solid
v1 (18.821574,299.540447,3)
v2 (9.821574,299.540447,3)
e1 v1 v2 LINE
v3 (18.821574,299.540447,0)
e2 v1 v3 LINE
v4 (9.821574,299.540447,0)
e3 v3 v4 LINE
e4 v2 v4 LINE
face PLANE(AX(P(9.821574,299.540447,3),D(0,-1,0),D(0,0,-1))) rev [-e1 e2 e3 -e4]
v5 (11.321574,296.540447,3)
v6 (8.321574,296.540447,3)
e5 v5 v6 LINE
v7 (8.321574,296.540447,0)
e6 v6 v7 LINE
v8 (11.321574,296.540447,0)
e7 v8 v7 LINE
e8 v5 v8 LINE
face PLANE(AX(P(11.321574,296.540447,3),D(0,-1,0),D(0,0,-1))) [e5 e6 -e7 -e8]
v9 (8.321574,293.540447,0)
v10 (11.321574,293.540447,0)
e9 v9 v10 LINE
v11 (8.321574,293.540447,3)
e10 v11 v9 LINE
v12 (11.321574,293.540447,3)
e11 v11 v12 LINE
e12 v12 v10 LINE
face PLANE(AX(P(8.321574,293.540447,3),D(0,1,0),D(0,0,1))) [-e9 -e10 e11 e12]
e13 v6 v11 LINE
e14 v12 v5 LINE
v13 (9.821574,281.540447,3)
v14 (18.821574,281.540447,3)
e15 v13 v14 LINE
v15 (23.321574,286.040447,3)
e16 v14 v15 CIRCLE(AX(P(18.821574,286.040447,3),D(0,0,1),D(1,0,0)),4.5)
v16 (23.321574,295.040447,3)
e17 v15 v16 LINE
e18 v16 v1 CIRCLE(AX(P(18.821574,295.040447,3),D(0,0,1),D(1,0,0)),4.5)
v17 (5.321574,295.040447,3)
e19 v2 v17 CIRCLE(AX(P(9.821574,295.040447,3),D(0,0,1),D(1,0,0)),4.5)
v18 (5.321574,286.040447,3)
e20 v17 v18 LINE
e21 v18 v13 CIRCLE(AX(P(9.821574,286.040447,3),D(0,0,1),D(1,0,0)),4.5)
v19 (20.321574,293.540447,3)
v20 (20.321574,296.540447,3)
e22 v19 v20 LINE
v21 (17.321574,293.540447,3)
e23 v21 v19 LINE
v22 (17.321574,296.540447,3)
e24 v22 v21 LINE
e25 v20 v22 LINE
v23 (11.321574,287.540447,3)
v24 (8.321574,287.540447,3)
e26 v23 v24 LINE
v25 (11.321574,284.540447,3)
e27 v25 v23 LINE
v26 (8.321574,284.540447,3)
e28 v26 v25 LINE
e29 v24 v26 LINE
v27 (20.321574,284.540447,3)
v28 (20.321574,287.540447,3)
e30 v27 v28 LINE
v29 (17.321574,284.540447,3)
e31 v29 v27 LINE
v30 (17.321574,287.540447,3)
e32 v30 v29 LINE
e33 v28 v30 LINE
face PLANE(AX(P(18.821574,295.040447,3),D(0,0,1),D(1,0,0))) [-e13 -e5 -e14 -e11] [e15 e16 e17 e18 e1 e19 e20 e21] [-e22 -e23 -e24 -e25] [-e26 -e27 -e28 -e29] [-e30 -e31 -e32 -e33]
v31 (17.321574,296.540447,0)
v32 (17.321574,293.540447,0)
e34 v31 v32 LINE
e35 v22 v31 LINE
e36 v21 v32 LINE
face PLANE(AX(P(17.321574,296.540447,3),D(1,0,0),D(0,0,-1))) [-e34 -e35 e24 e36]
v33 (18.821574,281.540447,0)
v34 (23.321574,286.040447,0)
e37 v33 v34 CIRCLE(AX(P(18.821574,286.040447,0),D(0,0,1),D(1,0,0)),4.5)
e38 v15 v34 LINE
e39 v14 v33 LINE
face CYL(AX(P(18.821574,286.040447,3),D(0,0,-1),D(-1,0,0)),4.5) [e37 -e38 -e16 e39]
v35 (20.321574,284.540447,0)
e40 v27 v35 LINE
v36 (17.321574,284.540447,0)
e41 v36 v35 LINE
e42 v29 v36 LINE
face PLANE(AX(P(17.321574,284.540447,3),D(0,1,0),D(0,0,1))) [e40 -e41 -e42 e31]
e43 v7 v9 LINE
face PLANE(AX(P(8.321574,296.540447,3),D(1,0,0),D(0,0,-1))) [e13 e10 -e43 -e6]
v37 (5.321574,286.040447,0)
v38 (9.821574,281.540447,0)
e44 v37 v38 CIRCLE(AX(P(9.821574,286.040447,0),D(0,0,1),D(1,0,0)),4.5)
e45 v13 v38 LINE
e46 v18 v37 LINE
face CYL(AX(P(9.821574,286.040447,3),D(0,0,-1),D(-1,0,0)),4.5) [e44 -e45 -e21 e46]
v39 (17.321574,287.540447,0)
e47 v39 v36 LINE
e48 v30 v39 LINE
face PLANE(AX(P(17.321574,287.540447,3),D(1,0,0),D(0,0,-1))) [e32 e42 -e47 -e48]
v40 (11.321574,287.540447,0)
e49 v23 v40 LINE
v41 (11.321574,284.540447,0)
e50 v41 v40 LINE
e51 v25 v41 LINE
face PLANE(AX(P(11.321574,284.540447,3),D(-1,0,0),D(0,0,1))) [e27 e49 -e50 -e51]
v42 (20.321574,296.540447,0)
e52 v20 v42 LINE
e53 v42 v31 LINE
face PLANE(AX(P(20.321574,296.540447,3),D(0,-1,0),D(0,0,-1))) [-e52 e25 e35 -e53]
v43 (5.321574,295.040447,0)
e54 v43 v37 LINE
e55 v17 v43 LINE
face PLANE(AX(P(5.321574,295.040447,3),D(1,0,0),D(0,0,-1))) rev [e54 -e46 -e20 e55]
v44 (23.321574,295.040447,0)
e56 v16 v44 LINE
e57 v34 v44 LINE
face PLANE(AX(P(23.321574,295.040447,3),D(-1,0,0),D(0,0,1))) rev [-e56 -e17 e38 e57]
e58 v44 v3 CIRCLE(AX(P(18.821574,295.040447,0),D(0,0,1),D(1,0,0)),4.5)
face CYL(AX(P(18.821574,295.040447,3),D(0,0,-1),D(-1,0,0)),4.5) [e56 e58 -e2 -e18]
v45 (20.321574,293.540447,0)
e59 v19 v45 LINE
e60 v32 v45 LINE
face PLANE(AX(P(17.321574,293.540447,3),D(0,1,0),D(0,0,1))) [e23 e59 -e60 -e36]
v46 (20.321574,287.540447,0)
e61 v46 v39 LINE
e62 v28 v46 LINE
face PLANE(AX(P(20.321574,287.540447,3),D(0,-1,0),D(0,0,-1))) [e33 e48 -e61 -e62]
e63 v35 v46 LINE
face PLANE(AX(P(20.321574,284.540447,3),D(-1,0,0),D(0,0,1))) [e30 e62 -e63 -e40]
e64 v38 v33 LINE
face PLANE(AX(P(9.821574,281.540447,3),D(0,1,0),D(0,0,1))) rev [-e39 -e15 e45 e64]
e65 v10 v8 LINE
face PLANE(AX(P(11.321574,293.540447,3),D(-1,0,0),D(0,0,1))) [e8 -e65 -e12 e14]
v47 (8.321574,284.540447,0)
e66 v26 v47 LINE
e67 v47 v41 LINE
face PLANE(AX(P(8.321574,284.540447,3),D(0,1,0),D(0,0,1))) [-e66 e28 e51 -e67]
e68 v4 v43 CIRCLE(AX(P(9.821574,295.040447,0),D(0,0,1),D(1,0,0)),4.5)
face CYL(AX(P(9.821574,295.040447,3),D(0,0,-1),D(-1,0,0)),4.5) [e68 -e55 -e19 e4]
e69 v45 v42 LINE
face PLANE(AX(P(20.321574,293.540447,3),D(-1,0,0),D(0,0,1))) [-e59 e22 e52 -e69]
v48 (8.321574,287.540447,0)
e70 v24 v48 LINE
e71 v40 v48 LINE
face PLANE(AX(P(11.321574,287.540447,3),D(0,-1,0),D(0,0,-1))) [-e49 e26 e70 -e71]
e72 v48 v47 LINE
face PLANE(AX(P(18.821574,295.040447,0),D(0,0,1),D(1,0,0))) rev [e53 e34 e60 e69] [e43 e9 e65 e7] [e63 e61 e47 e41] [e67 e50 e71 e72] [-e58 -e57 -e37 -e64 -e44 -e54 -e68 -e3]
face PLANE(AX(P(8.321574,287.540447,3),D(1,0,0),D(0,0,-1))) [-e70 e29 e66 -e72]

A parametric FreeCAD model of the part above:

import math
import FreeCAD as App
import Part
import Sketcher

V = App.Vector


def add_polygon(sketch, points):
    """Adds a closed chain of lines whose ends are joined by coincident constraints."""
    first, n = sketch.GeometryCount, len(points)
    for a, b in zip(points, points[1:] + points[:1]):
        sketch.addGeometry(Part.LineSegment(App.Vector(*a, 0), App.Vector(*b, 0)), False)
    for i in range(n):
        sketch.addConstraint(Sketcher.Constraint("Coincident", first + i, 2, first + (i + 1) % n, 1))

doc = App.newDocument("Part")
params = doc.addObject("Spreadsheet::Sheet", "Params")
for row, (alias, value) in enumerate([
    ("sketch1_radius", "4.5 mm"),
    ("sketch1_width", "9 mm"),
    ("sketch1_width2", "3 mm"),
    ("pad1_length", "3 mm"),
], start=1):
    params.set(f"A{row}", alias)
    params.set(f"B{row}", "=" + value)
    params.setAlias(f"B{row}", alias)

body = doc.addObject("PartDesign::Body", "Body")

# Sketch on XY plane
sketch1 = doc.addObject("Sketcher::SketchObject", "Sketch")
body.addObject(sketch1)
sketch1.AttachmentSupport = (doc.XY_Plane, [""])
sketch1.MapMode = "FlatFace"
sketch1.addGeometry(Part.LineSegment(V(18.8, 299.5, 0), V(9.8, 299.5, 0)), False)  # 0
sketch1.addGeometry(Part.ArcOfCircle(Part.Circle(V(9.8, 295, 0), V(0, 0, 1), 4.5), math.radians(90), math.radians(180)), False)  # 1
sketch1.addGeometry(Part.LineSegment(V(5.3, 295, 0), V(5.3, 286, 0)), False)  # 2
sketch1.addGeometry(Part.ArcOfCircle(Part.Circle(V(9.8, 286, 0), V(0, 0, 1), 4.5), math.radians(180), math.radians(270)), False)  # 3
sketch1.addGeometry(Part.LineSegment(V(9.8, 281.5, 0), V(18.8, 281.5, 0)), False)  # 4
sketch1.addGeometry(Part.ArcOfCircle(Part.Circle(V(18.8, 286, 0), V(0, 0, 1), 4.5), math.radians(-90), math.radians(0)), False)  # 5
sketch1.addGeometry(Part.LineSegment(V(23.3, 286, 0), V(23.3, 295, 0)), False)  # 6
sketch1.addGeometry(Part.ArcOfCircle(Part.Circle(V(18.8, 295, 0), V(0, 0, 1), 4.5), math.radians(0), math.radians(90)), False)  # 7
add_polygon(sketch1, [(17.3, 284.5), (17.3, 287.5), (20.3, 287.5), (20.3, 284.5)])  # lines 8-11
add_polygon(sketch1, [(8.3, 284.5), (8.3, 287.5), (11.3, 287.5), (11.3, 284.5)])  # lines 12-15
add_polygon(sketch1, [(17.3, 293.5), (17.3, 296.5), (20.3, 296.5), (20.3, 293.5)])  # lines 16-19
add_polygon(sketch1, [(8.3, 293.5), (8.3, 296.5), (11.3, 296.5), (11.3, 293.5)])  # lines 20-23
sketch1.addConstraint([
    Sketcher.Constraint("Tangent", 0, 2, 1, 1),
    Sketcher.Constraint("Tangent", 1, 2, 2, 1),
    Sketcher.Constraint("Tangent", 2, 2, 3, 1),
    Sketcher.Constraint("Tangent", 3, 2, 4, 1),
    Sketcher.Constraint("Tangent", 4, 2, 5, 1),
    Sketcher.Constraint("Tangent", 5, 2, 6, 1),
    Sketcher.Constraint("Tangent", 6, 2, 7, 1),
    Sketcher.Constraint("Tangent", 7, 2, 0, 1),
    Sketcher.Constraint("Horizontal", 0),
    Sketcher.Constraint("Vertical", 2),
    Sketcher.Constraint("Horizontal", 4),
    Sketcher.Constraint("Vertical", 6),
    Sketcher.Constraint("Vertical", 8),
    Sketcher.Constraint("Horizontal", 9),
    Sketcher.Constraint("Vertical", 10),
    Sketcher.Constraint("Horizontal", 11),
    Sketcher.Constraint("Vertical", 12),
    Sketcher.Constraint("Horizontal", 13),
    Sketcher.Constraint("Vertical", 14),
    Sketcher.Constraint("Horizontal", 15),
    Sketcher.Constraint("Vertical", 16),
    Sketcher.Constraint("Horizontal", 17),
    Sketcher.Constraint("Vertical", 18),
    Sketcher.Constraint("Horizontal", 19),
    Sketcher.Constraint("Vertical", 20),
    Sketcher.Constraint("Horizontal", 21),
    Sketcher.Constraint("Vertical", 22),
    Sketcher.Constraint("Horizontal", 23),
    Sketcher.Constraint("Equal", 1, 3),
    Sketcher.Constraint("Equal", 3, 5),
    Sketcher.Constraint("Equal", 5, 7),
    Sketcher.Constraint("Horizontal", 9, 2, 12, 2),
    Sketcher.Constraint("Horizontal", 11, 2, 14, 2),
    Sketcher.Constraint("Horizontal", 17, 2, 20, 2),
    Sketcher.Constraint("Horizontal", 19, 2, 22, 2),
    Sketcher.Constraint("Vertical", 11, 2, 16, 2),
    Sketcher.Constraint("Vertical", 10, 2, 17, 2),
    Sketcher.Constraint("Vertical", 15, 2, 20, 2),
    Sketcher.Constraint("Vertical", 14, 2, 21, 2),
    Sketcher.Constraint("Equal", 11, 13),
    Sketcher.Constraint("Equal", 4, 2),
    Sketcher.Constraint("Equal", 23, 8),
    Sketcher.Constraint("Equal", 14, 16),
    Sketcher.Constraint("Radius", 1, 4.5),
    Sketcher.Constraint("DistanceX", 0, 2, 0, 1, 9.0),
    Sketcher.Constraint("DistanceX", 9, 1, 9, 2, 3.0),
    Sketcher.Constraint("DistanceY", 4, 2, 8, 2, 6.0),
    Sketcher.Constraint("DistanceX", 8, 2, 5, 2, 6.0),
    Sketcher.Constraint("DistanceX", 2, 2, 12, 2, 3.0),
    Sketcher.Constraint("DistanceY", 16, 2, 7, 2, 3.0),
    Sketcher.Constraint("DistanceX", -1, 1, 1, 3, 9.821574),
    Sketcher.Constraint("DistanceY", -1, 1, 1, 3, 295.040447),
])
sketch1.setExpression("Constraints[59]", "Params.sketch1_radius")
sketch1.setExpression("Constraints[60]", "Params.sketch1_width")
sketch1.setExpression("Constraints[61]", "Params.sketch1_width2")
pad1 = doc.addObject("PartDesign::Pad", "Pad")
body.addObject(pad1)
pad1.Profile = sketch1
pad1.setExpression("Length", "Params.pad1_length")

doc.recompute()
